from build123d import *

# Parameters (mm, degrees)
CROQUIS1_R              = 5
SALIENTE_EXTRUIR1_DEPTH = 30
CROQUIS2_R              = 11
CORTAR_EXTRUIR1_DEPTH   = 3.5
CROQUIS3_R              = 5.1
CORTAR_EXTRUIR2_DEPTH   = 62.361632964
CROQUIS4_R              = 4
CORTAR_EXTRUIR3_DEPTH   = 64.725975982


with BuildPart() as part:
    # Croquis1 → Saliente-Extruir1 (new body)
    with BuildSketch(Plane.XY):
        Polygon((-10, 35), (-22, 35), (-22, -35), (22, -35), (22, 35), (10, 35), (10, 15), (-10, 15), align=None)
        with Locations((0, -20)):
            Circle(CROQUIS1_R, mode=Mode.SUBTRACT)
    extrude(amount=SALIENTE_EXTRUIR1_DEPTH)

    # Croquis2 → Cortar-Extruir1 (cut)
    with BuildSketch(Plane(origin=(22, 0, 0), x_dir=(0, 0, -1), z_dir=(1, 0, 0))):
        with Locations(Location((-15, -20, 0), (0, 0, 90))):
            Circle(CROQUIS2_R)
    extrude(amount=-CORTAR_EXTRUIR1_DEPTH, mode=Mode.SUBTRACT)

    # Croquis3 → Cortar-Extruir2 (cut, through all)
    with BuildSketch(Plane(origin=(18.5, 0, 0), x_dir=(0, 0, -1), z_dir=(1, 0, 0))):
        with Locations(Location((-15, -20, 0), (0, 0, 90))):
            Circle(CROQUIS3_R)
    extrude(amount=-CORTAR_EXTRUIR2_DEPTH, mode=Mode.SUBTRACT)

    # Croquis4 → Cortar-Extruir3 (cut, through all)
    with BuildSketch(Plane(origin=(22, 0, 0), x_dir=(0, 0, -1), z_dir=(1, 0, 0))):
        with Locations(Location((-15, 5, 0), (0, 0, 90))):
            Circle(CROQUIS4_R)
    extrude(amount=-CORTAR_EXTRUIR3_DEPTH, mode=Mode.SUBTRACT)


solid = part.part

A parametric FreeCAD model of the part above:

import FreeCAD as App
import Part
import Sketcher

V = App.Vector
Q = App.Units.Quantity

doc = App.newDocument("Part")
body = doc.addObject("PartDesign::Body", "Body")

sketch1 = body.newObject("Sketcher::SketchObject", "Sketch")
sketch1.AttachmentSupport = (doc.getObject("XY_Plane"), [""])
sketch1.MapMode = "FlatFace"
sketch1.addGeometry([
    Part.LineSegment(V(-10, 35, 0), V(-22, 35, 0)),
    Part.LineSegment(V(-22, 35, 0), V(-22, -35, 0)),
    Part.LineSegment(V(-22, -35, 0), V(22, -35, 0)),
    Part.LineSegment(V(22, -35, 0), V(22, 35, 0)),
    Part.LineSegment(V(22, 35, 0), V(10, 35, 0)),
    Part.LineSegment(V(10, 35, 0), V(10, 15, 0)),
    Part.LineSegment(V(10, 15, 0), V(-10, 15, 0)),
    Part.LineSegment(V(-10, 15, 0), V(-10, 35, 0)),
    Part.Circle(V(0, -20, 0), V(0, 0, 1), 5),
], False)
sketch1.addConstraint([
    Sketcher.Constraint("Coincident", 0, 2, 1, 1),
    Sketcher.Constraint("Coincident", 1, 2, 2, 1),
    Sketcher.Constraint("Coincident", 2, 2, 3, 1),
    Sketcher.Constraint("Coincident", 3, 2, 4, 1),
    Sketcher.Constraint("Coincident", 4, 2, 5, 1),
    Sketcher.Constraint("Coincident", 5, 2, 6, 1),
    Sketcher.Constraint("Coincident", 6, 2, 7, 1),
    Sketcher.Constraint("Coincident", 7, 2, 0, 1),
    Sketcher.Constraint("Horizontal", 0),
    Sketcher.Constraint("Vertical", 1),
    Sketcher.Constraint("Horizontal", 2),
    Sketcher.Constraint("Vertical", 3),
    Sketcher.Constraint("Horizontal", 4),
    Sketcher.Constraint("Vertical", 5),
    Sketcher.Constraint("Horizontal", 6),
    Sketcher.Constraint("Vertical", 7),
    Sketcher.Constraint("Symmetric", 0, 2, 2, 2, -1, 1),
    Sketcher.Constraint("Symmetric", 4, 2, 7, 2, -2),
    Sketcher.Constraint("PointOnObject", 8, 3, -2),
    Sketcher.Constraint("Equal", 6, 5),
    Sketcher.Constraint("Diameter", 8, Q("10 mm")),
    Sketcher.Constraint("DistanceX", 0, 2, 0, 1, Q("12 mm")),
    Sketcher.Constraint("DistanceX", 2, 1, 2, 2, Q("44 mm")),
    Sketcher.Constraint("DistanceY", 1, 2, 1, 1, Q("70 mm")),
    Sketcher.Constraint("DistanceY", 8, 3, -1, 1, Q("20 mm")),
])
pad1 = body.newObject("PartDesign::Pad", "Pad")
pad1.Profile = sketch1
pad1.Length = 30

sketch2 = body.newObject("Sketcher::SketchObject", "Sketch001")
sketch2.AttachmentSupport = (doc.getObject("YZ_Plane"), [""])
sketch2.MapMode = "FlatFace"
sketch2.AttachmentOffset = App.Placement(V(0, 0, 22), App.Rotation())
sketch2.addGeometry(Part.Circle(V(-20, 15, 0), V(0, 0, 1), 11), False)
sketch2.addConstraint([
    Sketcher.Constraint("Diameter", 0, Q("22 mm")),
    Sketcher.Constraint("DistanceX", 0, 3, -1, 1, Q("20 mm")),
    Sketcher.Constraint("DistanceY", -1, 1, 0, 3, Q("15 mm")),
])
pocket1 = body.newObject("PartDesign::Pocket", "Pocket")
pocket1.Profile = sketch2
pocket1.Length = 3.5

sketch3 = body.newObject("Sketcher::SketchObject", "Sketch002")
sketch3.AttachmentSupport = (doc.getObject("YZ_Plane"), [""])
sketch3.MapMode = "FlatFace"
sketch3.AttachmentOffset = App.Placement(V(0, 0, 18.5), App.Rotation())
sketch3.addGeometry(Part.Circle(V(-20, 15, 0), V(0, 0, 1), 5), False)
sketch3.addConstraint([
    Sketcher.Constraint("Diameter", 0, Q("10.2 mm")),
    Sketcher.Constraint("DistanceX", 0, 3, -1, 1, Q("20 mm")),
    Sketcher.Constraint("DistanceY", -1, 1, 0, 3, Q("15 mm")),
])
pocket2 = body.newObject("PartDesign::Pocket", "Pocket001")
pocket2.Profile = sketch3
pocket2.Type = "ThroughAll"

sketch4 = body.newObject("Sketcher::SketchObject", "Sketch003")
sketch4.AttachmentSupport = (doc.getObject("YZ_Plane"), [""])
sketch4.MapMode = "FlatFace"
sketch4.AttachmentOffset = App.Placement(V(0, 0, 22), App.Rotation())
sketch4.addGeometry(Part.Circle(V(5, 15, 0), V(0, 0, 1), 4), False)
sketch4.addConstraint([
    Sketcher.Constraint("Diameter", 0, Q("8 mm")),
    Sketcher.Constraint("DistanceX", -1, 1, 0, 3, Q("5 mm")),
    Sketcher.Constraint("DistanceY", -1, 1, 0, 3, Q("15 mm")),
])
pocket3 = body.newObject("PartDesign::Pocket", "Pocket002")
pocket3.Profile = sketch4
pocket3.Type = "ThroughAll"

doc.recompute()
